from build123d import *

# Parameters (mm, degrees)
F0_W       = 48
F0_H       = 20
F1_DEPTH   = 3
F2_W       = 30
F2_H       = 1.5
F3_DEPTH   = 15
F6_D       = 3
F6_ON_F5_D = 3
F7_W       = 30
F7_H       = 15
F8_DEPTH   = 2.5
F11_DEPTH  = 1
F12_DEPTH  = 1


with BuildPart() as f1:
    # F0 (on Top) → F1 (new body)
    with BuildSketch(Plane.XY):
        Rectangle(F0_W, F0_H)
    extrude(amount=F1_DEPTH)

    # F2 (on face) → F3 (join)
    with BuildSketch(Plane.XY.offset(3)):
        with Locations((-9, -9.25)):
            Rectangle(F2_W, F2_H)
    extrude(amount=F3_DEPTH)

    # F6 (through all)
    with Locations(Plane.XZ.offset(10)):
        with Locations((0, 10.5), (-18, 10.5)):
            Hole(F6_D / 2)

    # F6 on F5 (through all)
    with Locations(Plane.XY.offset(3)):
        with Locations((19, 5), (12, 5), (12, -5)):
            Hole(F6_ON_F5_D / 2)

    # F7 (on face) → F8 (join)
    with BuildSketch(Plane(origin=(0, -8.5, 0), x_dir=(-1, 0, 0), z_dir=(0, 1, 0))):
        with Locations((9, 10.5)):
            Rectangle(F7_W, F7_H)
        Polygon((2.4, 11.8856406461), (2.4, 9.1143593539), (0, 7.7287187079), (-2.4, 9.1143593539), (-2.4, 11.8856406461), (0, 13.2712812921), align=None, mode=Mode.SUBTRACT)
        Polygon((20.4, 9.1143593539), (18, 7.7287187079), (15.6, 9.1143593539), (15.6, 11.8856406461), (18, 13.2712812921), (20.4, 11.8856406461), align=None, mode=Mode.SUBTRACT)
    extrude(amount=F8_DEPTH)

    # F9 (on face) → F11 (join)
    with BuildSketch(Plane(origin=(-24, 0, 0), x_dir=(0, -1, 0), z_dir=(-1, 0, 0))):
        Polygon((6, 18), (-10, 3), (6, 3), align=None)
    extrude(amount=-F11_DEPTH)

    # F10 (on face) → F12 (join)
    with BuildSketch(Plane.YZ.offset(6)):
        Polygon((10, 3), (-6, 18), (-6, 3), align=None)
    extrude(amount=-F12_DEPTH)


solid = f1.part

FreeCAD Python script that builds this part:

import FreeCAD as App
import Part
import Sketcher

V = App.Vector
Q = App.Units.Quantity

doc = App.newDocument("Part")
params = doc.addObject("Spreadsheet::Sheet", "Params")
for row, (alias, value) in enumerate([
    ("sketch1_width", "48 mm"),
    ("sketch1_height", "20 mm"),
    ("pad1_length", "3 mm"),
    ("sketch2_width", "30 mm"),
    ("sketch2_height", "1.5 mm"),
    ("pad2_length", "15 mm"),
    ("sketch3_diameter", "3 mm"),
    ("hole_diameter", "3 mm"),
    ("sketch4_diameter", "3 mm"),
    ("hole2_diameter", "3 mm"),
    ("sketch5_width", "30 mm"),
    ("sketch5_height", "15 mm"),
    ("pad3_length", "2.5 mm"),
    ("sketch6_width", "16 mm"),
    ("sketch6_height", "15 mm"),
    ("pad4_length", "1 mm"),
    ("sketch7_width", "16 mm"),
    ("sketch7_height", "15 mm"),
    ("pad5_length", "1 mm"),
], start=1):
    params.set(f"A{row}", alias)
    params.set(f"B{row}", "=" + value)
    params.setAlias(f"B{row}", alias)

body = doc.addObject("PartDesign::Body", "Body")

# Sketch on XY plane
sketch1 = doc.addObject("Sketcher::SketchObject", "Sketch")
body.addObject(sketch1)
sketch1.AttachmentSupport = (doc.XY_Plane, [""])
sketch1.MapMode = "FlatFace"
sketch1.addGeometry([
    Part.LineSegment(V(-24, 10, 0), V(-24, -10, 0)),
    Part.LineSegment(V(-24, -10, 0), V(24, -10, 0)),
    Part.LineSegment(V(24, -10, 0), V(24, 10, 0)),
    Part.LineSegment(V(24, 10, 0), V(-24, 10, 0)),
], False)
sketch1.addConstraint([
    Sketcher.Constraint("Coincident", 0, 2, 1, 1),
    Sketcher.Constraint("Coincident", 1, 2, 2, 1),
    Sketcher.Constraint("Coincident", 2, 2, 3, 1),
    Sketcher.Constraint("Coincident", 3, 2, 0, 1),
    Sketcher.Constraint("Vertical", 0),
    Sketcher.Constraint("Horizontal", 1),
    Sketcher.Constraint("Vertical", 2),
    Sketcher.Constraint("Horizontal", 3),
    Sketcher.Constraint("Symmetric", 0, 2, 2, 2, -1, 1),
    Sketcher.Constraint("DistanceX", 1, 1, 1, 2, 48.0),
    Sketcher.Constraint("DistanceY", 0, 2, 0, 1, 20.0),
])
sketch1.setExpression("Constraints[9]", "Params.sketch1_width")
sketch1.setExpression("Constraints[10]", "Params.sketch1_height")
pad1 = doc.addObject("PartDesign::Pad", "Pad")
body.addObject(pad1)
pad1.Profile = sketch1
pad1.setExpression("Length", "Params.pad1_length")

# Sketch on XY plane
sketch2 = doc.addObject("Sketcher::SketchObject", "Sketch001")
body.addObject(sketch2)
sketch2.AttachmentSupport = (doc.XY_Plane, [""])
sketch2.MapMode = "FlatFace"
sketch2.AttachmentOffset = App.Placement(V(0, 0, 3), App.Rotation())
sketch2.addGeometry([
    Part.LineSegment(V(-24, -8.5, 0), V(-24, -10, 0)),
    Part.LineSegment(V(-24, -10, 0), V(6, -10, 0)),
    Part.LineSegment(V(6, -10, 0), V(6, -8.5, 0)),
    Part.LineSegment(V(6, -8.5, 0), V(-24, -8.5, 0)),
], False)
sketch2.addConstraint([
    Sketcher.Constraint("Coincident", 0, 2, 1, 1),
    Sketcher.Constraint("Coincident", 1, 2, 2, 1),
    Sketcher.Constraint("Coincident", 2, 2, 3, 1),
    Sketcher.Constraint("Coincident", 3, 2, 0, 1),
    Sketcher.Constraint("Vertical", 0),
    Sketcher.Constraint("Horizontal", 1),
    Sketcher.Constraint("Vertical", 2),
    Sketcher.Constraint("Horizontal", 3),
    Sketcher.Constraint("DistanceX", 1, 1, 1, 2, 30.0),
    Sketcher.Constraint("DistanceY", 0, 2, 0, 1, 1.5),
    Sketcher.Constraint("DistanceX", 0, 2, -1, 1, 24.0),
    Sketcher.Constraint("DistanceY", 0, 2, -1, 1, 10.0),
])
sketch2.setExpression("Constraints[8]", "Params.sketch2_width")
sketch2.setExpression("Constraints[9]", "Params.sketch2_height")
pad2 = doc.addObject("PartDesign::Pad", "Pad001")
body.addObject(pad2)
pad2.Profile = sketch2
pad2.setExpression("Length", "Params.pad2_length")

# Sketch on XZ plane
sketch3 = doc.addObject("Sketcher::SketchObject", "Sketch002")
body.addObject(sketch3)
sketch3.AttachmentSupport = (doc.XZ_Plane, [""])
sketch3.MapMode = "FlatFace"
sketch3.AttachmentOffset = App.Placement(V(0, 0, 10), App.Rotation())
sketch3.addGeometry([
    Part.Circle(V(0, 10.5, 0), V(0, 0, 1), 1.5),
    Part.Circle(V(-18, 10.5, 0), V(0, 0, 1), 1.5),
], False)
sketch3.addConstraint([
    Sketcher.Constraint("Equal", 0, 1),
    Sketcher.Constraint("PointOnObject", 0, 3, -2),
    Sketcher.Constraint("Horizontal", 0, 3, 1, 3),
    Sketcher.Constraint("Diameter", 0, 3.0),
    Sketcher.Constraint("DistanceX", 1, 3, -1, 1, 18.0),
    Sketcher.Constraint("DistanceY", -1, 1, 0, 3, 10.5),
])
sketch3.setExpression("Constraints[3]", "Params.sketch3_diameter")
doc.recompute()
hole = doc.addObject("PartDesign::Hole", "Hole")
body.addObject(hole)
hole.Profile = sketch3
hole.ThreadType = "None"
hole.setExpression("Diameter", "Params.hole_diameter")
hole.DepthType = "ThroughAll"

# Sketch on XY plane
sketch4 = doc.addObject("Sketcher::SketchObject", "Sketch003")
body.addObject(sketch4)
sketch4.AttachmentSupport = (doc.XY_Plane, [""])
sketch4.MapMode = "FlatFace"
sketch4.AttachmentOffset = App.Placement(V(0, 0, 3), App.Rotation())
sketch4.addGeometry([
    Part.Circle(V(19, 5, 0), V(0, 0, 1), 1.5),
    Part.Circle(V(12, 5, 0), V(0, 0, 1), 1.5),
    Part.Circle(V(12, -5, 0), V(0, 0, 1), 1.5),
], False)
sketch4.addConstraint([
    Sketcher.Constraint("Equal", 0, 1),
    Sketcher.Constraint("Equal", 1, 2),
    Sketcher.Constraint("Symmetric", 1, 3, 2, 3, -1),
    Sketcher.Constraint("Horizontal", 0, 3, 1, 3),
    Sketcher.Constraint("Diameter", 0, 3.0),
    Sketcher.Constraint("DistanceX", -1, 1, 0, 3, 19.0),
    Sketcher.Constraint("DistanceY", -1, 1, 0, 3, 5.0),
    Sketcher.Constraint("DistanceX", -1, 1, 1, 3, 12.0),
])
sketch4.setExpression("Constraints[4]", "Params.sketch4_diameter")
doc.recompute()
hole2 = doc.addObject("PartDesign::Hole", "Hole001")
body.addObject(hole2)
hole2.Profile = sketch4
hole2.ThreadType = "None"
hole2.setExpression("Diameter", "Params.hole2_diameter")
hole2.DepthType = "ThroughAll"

# Sketch on XZ plane
sketch5 = doc.addObject("Sketcher::SketchObject", "Sketch004")
body.addObject(sketch5)
sketch5.AttachmentSupport = (doc.XZ_Plane, [""])
sketch5.MapMode = "FlatFace"
sketch5.AttachmentOffset = App.Placement(V(0, 0, 8.5), App.Rotation())
sketch5.addGeometry([
    Part.LineSegment(V(6, 18, 0), V(6, 3, 0)),  # 0
    Part.LineSegment(V(6, 3, 0), V(-24, 3, 0)),  # 1
    Part.LineSegment(V(-24, 3, 0), V(-24, 18, 0)),  # 2
    Part.LineSegment(V(-24, 18, 0), V(6, 18, 0)),  # 3
    Part.LineSegment(V(0, 13.3, 0), V(-2.4, 11.9, 0)),  # 4
    Part.LineSegment(V(-2.4, 11.9, 0), V(-2.4, 9.1, 0)),  # 5
    Part.LineSegment(V(-2.4, 9.1, 0), V(0, 7.7, 0)),  # 6
    Part.LineSegment(V(0, 7.7, 0), V(2.4, 9.1, 0)),  # 7
    Part.LineSegment(V(2.4, 9.1, 0), V(2.4, 11.9, 0)),  # 8
    Part.LineSegment(V(2.4, 11.9, 0), V(0, 13.3, 0)),  # 9
    Part.LineSegment(V(-20.4, 11.9, 0), V(-20.4, 9.1, 0)),  # 10
    Part.LineSegment(V(-20.4, 9.1, 0), V(-18, 7.7, 0)),  # 11
    Part.LineSegment(V(-18, 7.7, 0), V(-15.6, 9.1, 0)),  # 12
    Part.LineSegment(V(-15.6, 9.1, 0), V(-15.6, 11.9, 0)),  # 13
    Part.LineSegment(V(-15.6, 11.9, 0), V(-18, 13.3, 0)),  # 14
    Part.LineSegment(V(-18, 13.3, 0), V(-20.4, 11.9, 0)),  # 15
], False)
sketch5.addConstraint([
    Sketcher.Constraint("Coincident", 0, 2, 1, 1),
    Sketcher.Constraint("Coincident", 1, 2, 2, 1),
    Sketcher.Constraint("Coincident", 2, 2, 3, 1),
    Sketcher.Constraint("Coincident", 3, 2, 0, 1),
    Sketcher.Constraint("Coincident", 4, 2, 5, 1),
    Sketcher.Constraint("Coincident", 5, 2, 6, 1),
    Sketcher.Constraint("Coincident", 6, 2, 7, 1),
    Sketcher.Constraint("Coincident", 7, 2, 8, 1),
    Sketcher.Constraint("Coincident", 8, 2, 9, 1),
    Sketcher.Constraint("Coincident", 9, 2, 4, 1),
    Sketcher.Constraint("Coincident", 10, 2, 11, 1),
    Sketcher.Constraint("Coincident", 11, 2, 12, 1),
    Sketcher.Constraint("Coincident", 12, 2, 13, 1),
    Sketcher.Constraint("Coincident", 13, 2, 14, 1),
    Sketcher.Constraint("Coincident", 14, 2, 15, 1),
    Sketcher.Constraint("Coincident", 15, 2, 10, 1),
    Sketcher.Constraint("Vertical", 0),
    Sketcher.Constraint("Horizontal", 1),
    Sketcher.Constraint("Vertical", 2),
    Sketcher.Constraint("Horizontal", 3),
    Sketcher.Constraint("Vertical", 5),
    Sketcher.Constraint("Vertical", 8),
    Sketcher.Constraint("Vertical", 10),
    Sketcher.Constraint("Vertical", 13),
    Sketcher.Constraint("Symmetric", 5, 2, 7, 2, -2),
    Sketcher.Constraint("PointOnObject", 6, 2, -2),
    Sketcher.Constraint("PointOnObject", 9, 2, -2),
    Sketcher.Constraint("Parallel", 4, 7),
    Sketcher.Constraint("Parallel", 6, 9),
    Sketcher.Constraint("Parallel", 9, 11),
    Sketcher.Constraint("Parallel", 7, 12),
    Sketcher.Constraint("Parallel", 11, 14),
    Sketcher.Constraint("Parallel", 12, 15),
    Sketcher.Constraint("Horizontal", 7, 2, 10, 2),
    Sketcher.Constraint("Horizontal", 6, 2, 11, 2),
    Sketcher.Constraint("Horizontal", 10, 2, 12, 2),
    Sketcher.Constraint("Horizontal", 8, 2, 13, 2),
    Sketcher.Constraint("Horizontal", 9, 2, 14, 2),
    Sketcher.Constraint("DistanceX", 1, 2, 1, 1, 30.0),
    Sketcher.Constraint("DistanceY", 0, 2, 0, 1, 15.0),
    Sketcher.Constraint("Angle", 4, Q("-150 deg")),
    Sketcher.Constraint("DistanceX", -1, 1, 0, 2, 6.0),
    Sketcher.Constraint("DistanceY", -1, 1, 0, 2, 3.0),
    Sketcher.Constraint("DistanceX", 11, 2, -1, 1, 18.0),
    Sketcher.Constraint("DistanceX", 4, 2, -1, 1, 2.4),
    Sketcher.Constraint("DistanceY", 5, 2, 5, 1, 2.771281),
    Sketcher.Constraint("DistanceY", -1, 1, 4, 2, 11.885641),
])
sketch5.setExpression("Constraints[38]", "Params.sketch5_width")
sketch5.setExpression("Constraints[39]", "Params.sketch5_height")
pad3 = doc.addObject("PartDesign::Pad", "Pad002")
body.addObject(pad3)
pad3.Profile = sketch5
pad3.setExpression("Length", "Params.pad3_length")
pad3.Reversed = True

# Sketch on YZ plane
sketch6 = doc.addObject("Sketcher::SketchObject", "Sketch005")
body.addObject(sketch6)
sketch6.AttachmentSupport = (doc.YZ_Plane, [""])
sketch6.MapMode = "FlatFace"
sketch6.AttachmentOffset = App.Placement(V(0, 0, -24), App.Rotation())
sketch6.addGeometry([
    Part.LineSegment(V(-6, 18, 0), V(10, 3, 0)),
    Part.LineSegment(V(10, 3, 0), V(-6, 3, 0)),
    Part.LineSegment(V(-6, 3, 0), V(-6, 18, 0)),
], False)
sketch6.addConstraint([
    Sketcher.Constraint("Coincident", 0, 2, 1, 1),
    Sketcher.Constraint("Coincident", 1, 2, 2, 1),
    Sketcher.Constraint("Coincident", 2, 2, 0, 1),
    Sketcher.Constraint("Horizontal", 1),
    Sketcher.Constraint("Vertical", 2),
    Sketcher.Constraint("DistanceX", 1, 2, 1, 1, 16.0),
    Sketcher.Constraint("DistanceY", 2, 1, 2, 2, 15.0),
    Sketcher.Constraint("DistanceX", -1, 1, 0, 2, 10.0),
    Sketcher.Constraint("DistanceY", -1, 1, 0, 2, 3.0),
])
sketch6.setExpression("Constraints[5]", "Params.sketch6_width")
sketch6.setExpression("Constraints[6]", "Params.sketch6_height")
pad4 = doc.addObject("PartDesign::Pad", "Pad003")
body.addObject(pad4)
pad4.Profile = sketch6
pad4.setExpression("Length", "Params.pad4_length")

# Sketch on YZ plane
sketch7 = doc.addObject("Sketcher::SketchObject", "Sketch006")
body.addObject(sketch7)
sketch7.AttachmentSupport = (doc.YZ_Plane, [""])
sketch7.MapMode = "FlatFace"
sketch7.AttachmentOffset = App.Placement(V(0, 0, 6), App.Rotation())
sketch7.addGeometry([
    Part.LineSegment(V(10, 3, 0), V(-6, 18, 0)),
    Part.LineSegment(V(-6, 18, 0), V(-6, 3, 0)),
    Part.LineSegment(V(-6, 3, 0), V(10, 3, 0)),
], False)
sketch7.addConstraint([
    Sketcher.Constraint("Coincident", 0, 2, 1, 1),
    Sketcher.Constraint("Coincident", 1, 2, 2, 1),
    Sketcher.Constraint("Coincident", 2, 2, 0, 1),
    Sketcher.Constraint("Vertical", 1),
    Sketcher.Constraint("Horizontal", 2),
    Sketcher.Constraint("DistanceX", 2, 1, 2, 2, 16.0),
    Sketcher.Constraint("DistanceY", 1, 2, 1, 1, 15.0),
    Sketcher.Constraint("DistanceX", 0, 2, -1, 1, 6.0),
    Sketcher.Constraint("DistanceY", -1, 1, 0, 2, 18.0),
])
sketch7.setExpression("Constraints[5]", "Params.sketch7_width")
sketch7.setExpression("Constraints[6]", "Params.sketch7_height")
pad5 = doc.addObject("PartDesign::Pad", "Pad004")
body.addObject(pad5)
pad5.Profile = sketch7
pad5.setExpression("Length", "Params.pad5_length")
pad5.Reversed = True

doc.recompute()
